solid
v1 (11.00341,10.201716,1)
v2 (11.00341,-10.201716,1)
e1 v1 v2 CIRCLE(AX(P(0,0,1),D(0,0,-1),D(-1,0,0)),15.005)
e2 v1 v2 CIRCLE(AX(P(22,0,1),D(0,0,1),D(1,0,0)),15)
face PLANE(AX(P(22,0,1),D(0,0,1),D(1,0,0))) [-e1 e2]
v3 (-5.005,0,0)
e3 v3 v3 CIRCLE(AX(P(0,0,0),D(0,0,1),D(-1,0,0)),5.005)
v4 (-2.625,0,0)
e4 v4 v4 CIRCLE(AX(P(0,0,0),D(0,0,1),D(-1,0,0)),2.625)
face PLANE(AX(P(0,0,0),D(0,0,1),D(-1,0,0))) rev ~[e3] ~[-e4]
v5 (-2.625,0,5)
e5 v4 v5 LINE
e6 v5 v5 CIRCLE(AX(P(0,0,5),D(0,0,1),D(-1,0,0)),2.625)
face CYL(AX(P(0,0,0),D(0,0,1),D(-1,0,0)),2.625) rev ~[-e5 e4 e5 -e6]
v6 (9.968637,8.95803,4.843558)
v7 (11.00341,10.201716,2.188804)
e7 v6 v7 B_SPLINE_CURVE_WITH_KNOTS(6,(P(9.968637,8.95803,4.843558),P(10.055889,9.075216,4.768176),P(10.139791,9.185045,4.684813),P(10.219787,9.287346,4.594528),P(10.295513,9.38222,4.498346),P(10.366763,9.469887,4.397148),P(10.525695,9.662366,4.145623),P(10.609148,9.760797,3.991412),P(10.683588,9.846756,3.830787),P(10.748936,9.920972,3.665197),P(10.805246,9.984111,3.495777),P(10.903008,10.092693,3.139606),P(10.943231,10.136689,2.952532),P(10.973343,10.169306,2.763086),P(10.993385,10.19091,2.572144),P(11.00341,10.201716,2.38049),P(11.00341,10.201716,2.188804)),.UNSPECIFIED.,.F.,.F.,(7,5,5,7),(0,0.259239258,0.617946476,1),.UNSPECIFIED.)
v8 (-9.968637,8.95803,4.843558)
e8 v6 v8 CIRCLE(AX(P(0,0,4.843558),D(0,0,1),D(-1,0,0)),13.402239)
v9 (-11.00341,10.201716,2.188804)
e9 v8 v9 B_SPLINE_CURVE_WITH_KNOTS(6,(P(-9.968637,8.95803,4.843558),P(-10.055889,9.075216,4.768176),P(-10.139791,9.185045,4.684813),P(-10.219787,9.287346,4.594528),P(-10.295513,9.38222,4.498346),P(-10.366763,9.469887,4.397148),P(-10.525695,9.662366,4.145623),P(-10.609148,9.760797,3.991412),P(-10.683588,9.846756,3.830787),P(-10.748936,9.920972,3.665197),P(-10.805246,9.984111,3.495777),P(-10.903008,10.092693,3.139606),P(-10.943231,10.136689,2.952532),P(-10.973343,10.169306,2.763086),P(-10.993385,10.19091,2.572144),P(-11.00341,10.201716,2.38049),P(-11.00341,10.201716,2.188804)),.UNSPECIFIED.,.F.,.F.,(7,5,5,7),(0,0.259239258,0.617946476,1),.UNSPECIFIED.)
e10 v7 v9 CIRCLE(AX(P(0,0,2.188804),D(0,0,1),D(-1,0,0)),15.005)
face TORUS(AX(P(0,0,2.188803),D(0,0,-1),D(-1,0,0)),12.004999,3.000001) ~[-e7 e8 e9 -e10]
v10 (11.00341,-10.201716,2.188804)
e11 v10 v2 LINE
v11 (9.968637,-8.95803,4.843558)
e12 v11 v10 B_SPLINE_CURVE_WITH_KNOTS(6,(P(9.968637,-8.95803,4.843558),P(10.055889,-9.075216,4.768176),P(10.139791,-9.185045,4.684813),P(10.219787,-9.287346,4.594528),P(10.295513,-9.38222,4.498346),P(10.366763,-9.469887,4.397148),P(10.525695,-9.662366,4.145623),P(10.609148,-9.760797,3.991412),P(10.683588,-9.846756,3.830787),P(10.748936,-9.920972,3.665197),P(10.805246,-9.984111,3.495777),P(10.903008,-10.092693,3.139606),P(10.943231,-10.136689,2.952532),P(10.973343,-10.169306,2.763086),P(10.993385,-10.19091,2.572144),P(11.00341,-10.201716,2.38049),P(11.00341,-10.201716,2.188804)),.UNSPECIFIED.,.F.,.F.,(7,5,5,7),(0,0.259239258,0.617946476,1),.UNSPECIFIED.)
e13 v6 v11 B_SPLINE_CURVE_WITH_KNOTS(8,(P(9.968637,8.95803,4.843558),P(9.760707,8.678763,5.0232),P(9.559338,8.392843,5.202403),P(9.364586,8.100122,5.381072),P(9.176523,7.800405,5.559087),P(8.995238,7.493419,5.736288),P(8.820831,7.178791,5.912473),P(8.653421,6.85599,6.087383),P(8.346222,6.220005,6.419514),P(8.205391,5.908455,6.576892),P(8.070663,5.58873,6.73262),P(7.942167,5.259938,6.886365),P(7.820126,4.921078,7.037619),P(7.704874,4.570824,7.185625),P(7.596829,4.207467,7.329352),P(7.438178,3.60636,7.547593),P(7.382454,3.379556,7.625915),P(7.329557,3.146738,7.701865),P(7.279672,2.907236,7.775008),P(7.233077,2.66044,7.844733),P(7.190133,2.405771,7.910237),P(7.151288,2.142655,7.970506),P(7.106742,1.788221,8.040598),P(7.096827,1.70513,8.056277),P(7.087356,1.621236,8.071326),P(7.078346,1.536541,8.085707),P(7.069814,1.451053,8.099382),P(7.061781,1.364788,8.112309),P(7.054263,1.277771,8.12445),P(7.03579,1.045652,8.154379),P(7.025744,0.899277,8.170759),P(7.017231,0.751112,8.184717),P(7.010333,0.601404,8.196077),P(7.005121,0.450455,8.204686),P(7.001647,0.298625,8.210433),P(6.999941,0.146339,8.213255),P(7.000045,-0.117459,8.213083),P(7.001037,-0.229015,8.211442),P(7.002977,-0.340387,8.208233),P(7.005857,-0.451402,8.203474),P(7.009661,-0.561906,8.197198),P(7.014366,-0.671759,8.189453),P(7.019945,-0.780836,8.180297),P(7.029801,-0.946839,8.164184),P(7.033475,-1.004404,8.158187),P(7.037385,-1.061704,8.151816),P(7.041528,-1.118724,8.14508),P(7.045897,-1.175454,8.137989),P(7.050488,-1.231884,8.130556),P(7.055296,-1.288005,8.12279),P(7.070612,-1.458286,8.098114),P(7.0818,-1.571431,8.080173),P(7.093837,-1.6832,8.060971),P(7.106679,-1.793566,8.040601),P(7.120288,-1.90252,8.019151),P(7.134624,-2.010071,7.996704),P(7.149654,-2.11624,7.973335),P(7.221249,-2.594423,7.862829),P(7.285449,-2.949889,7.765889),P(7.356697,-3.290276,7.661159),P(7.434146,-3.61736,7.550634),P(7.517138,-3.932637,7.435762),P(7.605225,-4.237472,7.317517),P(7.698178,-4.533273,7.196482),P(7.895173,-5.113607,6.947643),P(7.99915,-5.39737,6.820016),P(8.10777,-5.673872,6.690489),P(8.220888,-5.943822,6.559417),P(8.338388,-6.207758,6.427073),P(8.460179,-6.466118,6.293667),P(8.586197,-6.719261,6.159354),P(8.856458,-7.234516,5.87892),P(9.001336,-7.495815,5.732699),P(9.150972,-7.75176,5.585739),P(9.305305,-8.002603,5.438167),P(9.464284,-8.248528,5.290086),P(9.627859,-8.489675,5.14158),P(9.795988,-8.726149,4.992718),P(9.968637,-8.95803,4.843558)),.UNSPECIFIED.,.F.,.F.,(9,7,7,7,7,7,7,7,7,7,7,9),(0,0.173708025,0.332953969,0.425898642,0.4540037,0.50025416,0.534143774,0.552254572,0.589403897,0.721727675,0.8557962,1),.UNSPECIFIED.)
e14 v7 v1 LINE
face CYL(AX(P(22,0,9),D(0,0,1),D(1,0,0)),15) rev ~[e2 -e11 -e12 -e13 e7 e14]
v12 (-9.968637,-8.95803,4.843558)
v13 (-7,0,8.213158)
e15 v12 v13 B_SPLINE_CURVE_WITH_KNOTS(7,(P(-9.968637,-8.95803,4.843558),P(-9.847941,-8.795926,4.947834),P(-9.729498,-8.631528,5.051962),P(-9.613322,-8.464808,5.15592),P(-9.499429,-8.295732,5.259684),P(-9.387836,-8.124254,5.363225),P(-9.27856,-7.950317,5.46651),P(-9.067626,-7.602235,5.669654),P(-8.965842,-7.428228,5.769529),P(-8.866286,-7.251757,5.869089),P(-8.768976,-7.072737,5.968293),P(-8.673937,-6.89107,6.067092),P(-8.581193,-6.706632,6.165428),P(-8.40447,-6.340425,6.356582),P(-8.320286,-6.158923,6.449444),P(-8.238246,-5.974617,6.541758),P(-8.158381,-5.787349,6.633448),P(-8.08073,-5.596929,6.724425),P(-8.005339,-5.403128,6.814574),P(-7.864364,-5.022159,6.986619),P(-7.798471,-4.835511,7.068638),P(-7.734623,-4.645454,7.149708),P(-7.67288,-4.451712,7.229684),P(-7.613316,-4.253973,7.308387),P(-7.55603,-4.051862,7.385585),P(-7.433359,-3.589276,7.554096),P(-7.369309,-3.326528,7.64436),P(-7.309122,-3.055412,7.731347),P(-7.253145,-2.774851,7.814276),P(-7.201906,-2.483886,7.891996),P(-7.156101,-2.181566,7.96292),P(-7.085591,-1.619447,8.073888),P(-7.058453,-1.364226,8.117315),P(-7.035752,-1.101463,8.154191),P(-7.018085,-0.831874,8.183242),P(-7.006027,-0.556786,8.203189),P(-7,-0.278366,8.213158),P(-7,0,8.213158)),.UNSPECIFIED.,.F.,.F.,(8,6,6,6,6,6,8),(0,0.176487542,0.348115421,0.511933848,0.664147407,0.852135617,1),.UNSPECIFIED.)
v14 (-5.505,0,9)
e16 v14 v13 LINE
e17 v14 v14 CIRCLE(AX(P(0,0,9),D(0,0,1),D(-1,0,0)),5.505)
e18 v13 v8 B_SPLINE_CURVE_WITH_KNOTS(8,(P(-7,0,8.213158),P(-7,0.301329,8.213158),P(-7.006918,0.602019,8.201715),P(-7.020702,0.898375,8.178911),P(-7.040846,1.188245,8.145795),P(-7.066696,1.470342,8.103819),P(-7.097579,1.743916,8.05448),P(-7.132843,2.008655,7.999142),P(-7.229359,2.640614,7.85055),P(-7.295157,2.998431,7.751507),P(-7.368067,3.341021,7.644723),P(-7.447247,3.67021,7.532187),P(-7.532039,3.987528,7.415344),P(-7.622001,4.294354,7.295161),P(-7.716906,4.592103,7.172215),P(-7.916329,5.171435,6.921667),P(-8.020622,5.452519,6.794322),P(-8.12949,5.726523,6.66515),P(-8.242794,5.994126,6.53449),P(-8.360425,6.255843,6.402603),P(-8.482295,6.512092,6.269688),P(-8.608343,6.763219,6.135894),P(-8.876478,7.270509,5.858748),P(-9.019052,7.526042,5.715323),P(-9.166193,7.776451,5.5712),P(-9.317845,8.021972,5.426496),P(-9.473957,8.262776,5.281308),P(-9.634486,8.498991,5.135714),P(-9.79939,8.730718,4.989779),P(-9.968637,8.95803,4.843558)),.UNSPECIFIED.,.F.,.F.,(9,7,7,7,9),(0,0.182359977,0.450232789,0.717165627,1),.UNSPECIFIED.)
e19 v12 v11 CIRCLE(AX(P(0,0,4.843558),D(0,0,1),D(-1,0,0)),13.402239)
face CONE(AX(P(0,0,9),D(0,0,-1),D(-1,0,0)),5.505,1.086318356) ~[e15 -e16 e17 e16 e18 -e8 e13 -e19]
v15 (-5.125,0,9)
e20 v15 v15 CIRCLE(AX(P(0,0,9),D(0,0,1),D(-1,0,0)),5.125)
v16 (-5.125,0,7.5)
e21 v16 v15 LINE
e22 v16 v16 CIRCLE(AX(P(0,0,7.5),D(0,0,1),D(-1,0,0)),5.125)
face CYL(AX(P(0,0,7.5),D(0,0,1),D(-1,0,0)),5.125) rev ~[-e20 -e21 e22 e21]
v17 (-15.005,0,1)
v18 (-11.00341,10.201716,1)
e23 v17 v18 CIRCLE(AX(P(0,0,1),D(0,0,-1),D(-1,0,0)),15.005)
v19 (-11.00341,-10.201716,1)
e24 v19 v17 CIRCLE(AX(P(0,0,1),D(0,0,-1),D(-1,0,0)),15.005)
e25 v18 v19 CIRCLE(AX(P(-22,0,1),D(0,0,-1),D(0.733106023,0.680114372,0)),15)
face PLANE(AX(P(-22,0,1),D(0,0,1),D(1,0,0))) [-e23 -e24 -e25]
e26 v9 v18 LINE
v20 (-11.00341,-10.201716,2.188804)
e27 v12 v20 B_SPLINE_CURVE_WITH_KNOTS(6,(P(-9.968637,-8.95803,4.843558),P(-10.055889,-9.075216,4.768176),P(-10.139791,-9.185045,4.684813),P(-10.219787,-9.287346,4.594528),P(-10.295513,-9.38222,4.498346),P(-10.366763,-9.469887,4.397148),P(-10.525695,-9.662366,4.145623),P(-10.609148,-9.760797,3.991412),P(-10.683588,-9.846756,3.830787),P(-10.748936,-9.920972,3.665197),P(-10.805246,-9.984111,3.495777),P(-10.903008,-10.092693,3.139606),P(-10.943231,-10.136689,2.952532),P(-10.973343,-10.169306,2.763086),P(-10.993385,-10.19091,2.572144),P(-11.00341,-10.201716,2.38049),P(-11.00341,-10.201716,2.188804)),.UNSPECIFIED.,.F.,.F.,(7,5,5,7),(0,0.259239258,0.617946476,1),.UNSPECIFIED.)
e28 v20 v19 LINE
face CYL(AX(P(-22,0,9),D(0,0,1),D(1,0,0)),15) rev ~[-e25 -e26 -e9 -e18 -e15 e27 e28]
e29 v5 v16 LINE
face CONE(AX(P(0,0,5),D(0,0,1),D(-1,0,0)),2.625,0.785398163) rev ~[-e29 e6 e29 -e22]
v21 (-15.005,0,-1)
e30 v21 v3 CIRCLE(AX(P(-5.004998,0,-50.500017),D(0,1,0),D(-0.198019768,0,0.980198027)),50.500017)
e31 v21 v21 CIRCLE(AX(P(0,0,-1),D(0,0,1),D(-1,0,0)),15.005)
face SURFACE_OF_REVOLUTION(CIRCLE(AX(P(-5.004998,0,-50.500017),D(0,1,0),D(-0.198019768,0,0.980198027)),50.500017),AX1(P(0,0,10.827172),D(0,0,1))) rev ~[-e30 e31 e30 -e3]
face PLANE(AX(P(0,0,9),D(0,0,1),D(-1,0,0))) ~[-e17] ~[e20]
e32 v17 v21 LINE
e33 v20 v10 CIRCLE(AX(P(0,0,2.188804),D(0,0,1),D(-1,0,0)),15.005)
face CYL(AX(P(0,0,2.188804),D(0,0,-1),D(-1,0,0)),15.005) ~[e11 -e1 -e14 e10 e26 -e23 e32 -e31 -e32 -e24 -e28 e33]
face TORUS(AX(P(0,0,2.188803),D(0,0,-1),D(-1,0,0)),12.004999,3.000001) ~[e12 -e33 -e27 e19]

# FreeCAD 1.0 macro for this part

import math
import FreeCAD as App
import Part
import Sketcher
from FreeCAD import Vector
Q = App.Units.Quantity

doc = App.newDocument("Part")
params = doc.addObject("Spreadsheet::Sheet", "Params")
for row, (alias, value) in enumerate([
    ("sketch1_radius", "3.000001 mm"),
    ("sketch1_height", "5 mm"),
    ("sketch1_height2", "1.5 mm"),
    ("sketch1_width", "0.38 mm"),
    ("sketch1_width2", "2.38 mm"),
    ("revolution_angle", "360 deg"),
    ("sketch2_diameter", "30 mm"),
    ("pocket1_length", "8 mm"),
], start=1):
    params.set(f"A{row}", alias)
    params.set(f"B{row}", "=" + value)
    params.setAlias(f"B{row}", alias)

body = doc.addObject("PartDesign::Body", "Body")

sketch1 = doc.addObject("Sketcher::SketchObject", "Sketch")
body.addObject(sketch1)
sketch1.AttachmentSupport = (doc.XZ_Plane, [""])
sketch1.MapMode = "FlatFace"
sketch1.addGeometry([
    Part.LineSegment(Vector(-2.625, 0, 0), Vector(-2.625, 5, 0)),
    Part.LineSegment(Vector(-2.625, 5, 0), Vector(-5.125, 7.5, 0)),
    Part.LineSegment(Vector(-5.125, 7.5, 0), Vector(-5.125, 9, 0)),
    Part.LineSegment(Vector(-5.125, 9, 0), Vector(-5.505, 9, 0)),
    Part.LineSegment(Vector(-5.505, 9, 0), Vector(-13.402239, 4.843558, 0)),
    Part.ArcOfCircle(Part.Circle(Vector(-12.004999, 2.188803, 0), Vector(0, 0, 1), 3.000001), math.radians(117.758541), math.radians(179.999978)),
    Part.LineSegment(Vector(-15.005, 2.188804, 0), Vector(-15.005, -1, 0)),
    Part.ArcOfCircle(Part.Circle(Vector(-5.004998, -50.500017, 0), Vector(0, 0, 1), 50.500017), math.radians(90.000002), math.radians(101.421184)),
    Part.LineSegment(Vector(-5.005, 0, 0), Vector(-2.625, 0, 0)),
], False)
sketch1.addConstraint([
    Sketcher.Constraint("Coincident", 0, 2, 1, 1),
    Sketcher.Constraint("Coincident", 1, 2, 2, 1),
    Sketcher.Constraint("Coincident", 2, 2, 3, 1),
    Sketcher.Constraint("Coincident", 3, 2, 4, 1),
    Sketcher.Constraint("Tangent", 4, 2, 5, 1),
    Sketcher.Constraint("Tangent", 5, 2, 6, 1),
    Sketcher.Constraint("Coincident", 6, 2, 7, 2),
    Sketcher.Constraint("Tangent", 7, 1, 8, 1),
    Sketcher.Constraint("Coincident", 8, 2, 0, 1),
    Sketcher.Constraint("Vertical", 0),
    Sketcher.Constraint("Vertical", 2),
    Sketcher.Constraint("Horizontal", 3),
    Sketcher.Constraint("Vertical", 6),
    Sketcher.Constraint("Horizontal", 8),
    Sketcher.Constraint("PointOnObject", 7, 1, -1),
    Sketcher.Constraint("Radius", 5, Q("3.000001 mm")),
    Sketcher.Constraint("DistanceY", 0, 1, 0, 2, Q("5 mm")),
    Sketcher.Constraint("Angle", 1, Q("135 deg")),
    Sketcher.Constraint("DistanceY", 2, 1, 2, 2, Q("1.5 mm")),
    Sketcher.Constraint("DistanceY", -1, 1, 2, 2, Q("9 mm")),
    Sketcher.Constraint("DistanceY", 6, 2, -1, 1, Q("1 mm")),
    Sketcher.Constraint("DistanceX", 5, 3, 7, 3, Q("7.000001 mm")),
    Sketcher.Constraint("DistanceX", 3, 2, 3, 1, Q("0.38 mm")),
    Sketcher.Constraint("DistanceX", 8, 1, 8, 2, Q("2.38 mm")),
    Sketcher.Constraint("DistanceX", 5, 3, -1, 1, Q("12.004999 mm")),
    Sketcher.Constraint("Distance", 4, Q("8.924259 mm")),
])
sketch1.setExpression("Constraints[15]", "Params.sketch1_radius")
sketch1.setExpression("Constraints[16]", "Params.sketch1_height")
sketch1.setExpression("Constraints[18]", "Params.sketch1_height2")
sketch1.setExpression("Constraints[22]", "Params.sketch1_width")
sketch1.setExpression("Constraints[23]", "Params.sketch1_width2")
revolution = doc.addObject("PartDesign::Revolution", "Revolution")
body.addObject(revolution)
revolution.Profile = sketch1
revolution.ReferenceAxis = (sketch1, ["V_Axis"])
revolution.setExpression("Angle", "Params.revolution_angle")

sketch2 = doc.addObject("Sketcher::SketchObject", "Sketch001")
body.addObject(sketch2)
sketch2.AttachmentSupport = (doc.XY_Plane, [""])
sketch2.MapMode = "FlatFace"
sketch2.AttachmentOffset = App.Placement(Vector(0, 0, 9), App.Rotation())
sketch2.addGeometry([
    Part.Circle(Vector(-22, 0, 0), Vector(0, 0, 1), 15),
    Part.Circle(Vector(22, 0, 0), Vector(0, 0, 1), 15),
], False)
sketch2.addConstraint([
    Sketcher.Constraint("Equal", 0, 1),
    Sketcher.Constraint("Symmetric", 0, 3, 1, 3, -1, 1),
    Sketcher.Constraint("PointOnObject", 0, 3, -1),
    Sketcher.Constraint("Diameter", 0, Q("30 mm")),
    Sketcher.Constraint("DistanceX", 0, 3, -1, 1, Q("22 mm")),
])
sketch2.setExpression("Constraints[3]", "Params.sketch2_diameter")
pocket1 = doc.addObject("PartDesign::Pocket", "Pocket")
body.addObject(pocket1)
pocket1.Profile = sketch2
pocket1.setExpression("Length", "Params.pocket1_length")

doc.recompute()
